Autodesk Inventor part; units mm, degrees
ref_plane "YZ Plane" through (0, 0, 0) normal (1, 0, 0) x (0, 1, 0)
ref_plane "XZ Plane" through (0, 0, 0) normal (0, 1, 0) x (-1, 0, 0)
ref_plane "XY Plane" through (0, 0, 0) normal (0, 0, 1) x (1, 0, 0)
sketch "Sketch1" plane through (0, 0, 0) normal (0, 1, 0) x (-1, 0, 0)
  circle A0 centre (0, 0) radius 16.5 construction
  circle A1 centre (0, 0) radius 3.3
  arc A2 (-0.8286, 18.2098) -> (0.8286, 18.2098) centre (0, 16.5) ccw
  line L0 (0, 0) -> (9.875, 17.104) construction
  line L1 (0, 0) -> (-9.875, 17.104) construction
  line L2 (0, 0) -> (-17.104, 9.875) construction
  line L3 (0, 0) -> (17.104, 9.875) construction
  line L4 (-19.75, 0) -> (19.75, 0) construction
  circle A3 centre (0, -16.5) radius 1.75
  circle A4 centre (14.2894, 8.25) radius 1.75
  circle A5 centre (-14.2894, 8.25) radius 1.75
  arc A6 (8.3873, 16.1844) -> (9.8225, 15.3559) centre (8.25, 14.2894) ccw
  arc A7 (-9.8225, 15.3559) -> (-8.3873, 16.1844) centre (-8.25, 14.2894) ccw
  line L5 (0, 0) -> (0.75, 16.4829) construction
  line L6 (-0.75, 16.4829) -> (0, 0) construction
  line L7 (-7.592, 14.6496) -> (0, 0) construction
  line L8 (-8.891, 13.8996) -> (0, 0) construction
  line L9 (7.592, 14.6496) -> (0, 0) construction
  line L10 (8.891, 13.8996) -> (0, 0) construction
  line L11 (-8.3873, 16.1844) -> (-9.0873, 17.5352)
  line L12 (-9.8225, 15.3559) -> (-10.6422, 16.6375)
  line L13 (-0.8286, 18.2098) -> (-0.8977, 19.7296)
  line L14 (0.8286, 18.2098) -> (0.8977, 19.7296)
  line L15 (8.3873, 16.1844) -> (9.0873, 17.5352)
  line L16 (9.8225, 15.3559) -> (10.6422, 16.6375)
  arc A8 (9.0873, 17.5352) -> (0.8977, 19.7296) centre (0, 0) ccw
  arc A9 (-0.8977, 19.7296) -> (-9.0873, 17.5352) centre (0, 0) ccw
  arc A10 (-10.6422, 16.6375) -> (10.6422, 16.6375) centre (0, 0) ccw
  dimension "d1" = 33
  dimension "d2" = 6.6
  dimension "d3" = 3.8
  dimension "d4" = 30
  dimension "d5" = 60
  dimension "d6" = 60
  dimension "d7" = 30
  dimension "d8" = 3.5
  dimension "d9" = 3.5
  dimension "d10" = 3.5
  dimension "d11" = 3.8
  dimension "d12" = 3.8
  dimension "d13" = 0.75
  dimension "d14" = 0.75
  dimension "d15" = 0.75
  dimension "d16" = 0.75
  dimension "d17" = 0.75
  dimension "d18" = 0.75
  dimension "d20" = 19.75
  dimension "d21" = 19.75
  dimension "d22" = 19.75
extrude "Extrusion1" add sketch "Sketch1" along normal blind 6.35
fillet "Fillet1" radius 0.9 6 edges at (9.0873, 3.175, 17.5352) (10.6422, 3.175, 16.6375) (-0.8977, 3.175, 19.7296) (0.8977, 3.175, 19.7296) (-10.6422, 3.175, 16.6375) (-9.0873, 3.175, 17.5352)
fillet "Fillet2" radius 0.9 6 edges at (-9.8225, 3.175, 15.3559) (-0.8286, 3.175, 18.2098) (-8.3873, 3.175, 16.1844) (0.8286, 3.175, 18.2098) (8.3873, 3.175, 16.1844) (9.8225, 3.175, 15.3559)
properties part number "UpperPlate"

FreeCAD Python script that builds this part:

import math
import FreeCAD as App
import Part
import Sketcher


def edges_at(feature, points):
    """Names of the edges that pass closest to the given points."""
    edges = feature.Shape.Edges
    near = lambda p: min(range(len(edges)), key=lambda i: edges[i].distToShape(Part.Vertex(*p))[0])
    return sorted({f"Edge{near(p) + 1}" for p in points})

doc = App.newDocument("Part")
body = doc.addObject("PartDesign::Body", "Body")

sketch1 = body.newObject("Sketcher::SketchObject", "Sketch")
sketch1.AttachmentSupport = (doc.getObject("XZ_Plane"), [""])
sketch1.MapMode = "FlatFace"
sketch1.addGeometry([
    Part.ArcOfCircle(Part.Circle(App.Vector(0, 16.5, 0), App.Vector(0, 0, 1), 1.9), math.radians(116), math.radians(424)),
    Part.LineSegment(App.Vector(0.8, 18.2, 0), App.Vector(0.9, 19.7, 0)),
    Part.ArcOfCircle(Part.Circle(App.Vector(0, 0, 0), App.Vector(0, 0, 1), 19.7), math.radians(63), math.radians(87)),
    Part.LineSegment(App.Vector(9.1, 17.5, 0), App.Vector(8.4, 16.2, 0)),
    Part.ArcOfCircle(Part.Circle(App.Vector(8.2, 14.3, 0), App.Vector(0, 0, 1), 1.9), math.radians(86), math.radians(394)),
    Part.LineSegment(App.Vector(9.8, 15.4, 0), App.Vector(10.6, 16.6, 0)),
    Part.ArcOfCircle(Part.Circle(App.Vector(0, 0, 0), App.Vector(0, 0, 1), 19.8), math.radians(123), math.radians(417)),
    Part.LineSegment(App.Vector(-10.6, 16.6, 0), App.Vector(-9.8, 15.4, 0)),
    Part.ArcOfCircle(Part.Circle(App.Vector(-8.2, 14.3, 0), App.Vector(0, 0, 1), 1.9), math.radians(146), math.radians(454)),
    Part.LineSegment(App.Vector(-8.4, 16.2, 0), App.Vector(-9.1, 17.5, 0)),
    Part.ArcOfCircle(Part.Circle(App.Vector(0, 0, 0), App.Vector(0, 0, 1), 19.8), math.radians(93), math.radians(117)),
    Part.LineSegment(App.Vector(-0.9, 19.7, 0), App.Vector(-0.8, 18.2, 0)),
    Part.Circle(App.Vector(0, -16.5, 0), App.Vector(0, 0, 1), 1.8),
    Part.Circle(App.Vector(14.3, 8.2, 0), App.Vector(0, 0, 1), 1.8),
    Part.Circle(App.Vector(0, 0, 0), App.Vector(0, 0, 1), 3.3),
    Part.Circle(App.Vector(-14.3, 8.2, 0), App.Vector(0, 0, 1), 1.8),
], False)
sketch1.addConstraint([
    Sketcher.Constraint("Coincident", 0, 2, 1, 1),
    Sketcher.Constraint("Coincident", 1, 2, 2, 2),
    Sketcher.Constraint("Coincident", 2, 1, 3, 1),
    Sketcher.Constraint("Coincident", 3, 2, 4, 1),
    Sketcher.Constraint("Coincident", 4, 2, 5, 1),
    Sketcher.Constraint("Coincident", 5, 2, 6, 2),
    Sketcher.Constraint("Coincident", 6, 1, 7, 1),
    Sketcher.Constraint("Coincident", 7, 2, 8, 1),
    Sketcher.Constraint("Coincident", 8, 2, 9, 1),
    Sketcher.Constraint("Coincident", 9, 2, 10, 2),
    Sketcher.Constraint("Coincident", 10, 1, 11, 1),
    Sketcher.Constraint("Coincident", 11, 2, 0, 1),
    Sketcher.Constraint("Coincident", 2, 3, -1, 1),
    Sketcher.Constraint("Coincident", 6, 3, -1, 1),
    Sketcher.Constraint("Coincident", 10, 3, -1, 1),
    Sketcher.Constraint("Coincident", 14, 3, -1, 1),
    Sketcher.Constraint("Equal", 0, 4),
    Sketcher.Constraint("Equal", 2, 6),
    Sketcher.Constraint("Equal", 4, 8),
    Sketcher.Constraint("Equal", 6, 10),
    Sketcher.Constraint("Equal", 12, 13),
    Sketcher.Constraint("Equal", 13, 15),
    Sketcher.Constraint("Symmetric", 0, 3, 12, 3, -1, 1),
    Sketcher.Constraint("Symmetric", 4, 3, 8, 3, -2),
    Sketcher.Constraint("Symmetric", 13, 3, 15, 3, -2),
    Sketcher.Constraint("Symmetric", 0, 2, 11, 2, -2),
    Sketcher.Constraint("Horizontal", 5, 2, 6, 1),
    Sketcher.Constraint("Horizontal", 4, 2, 7, 2),
    Sketcher.Constraint("Horizontal", 3, 2, 8, 2),
    Sketcher.Constraint("Horizontal", 2, 1, 9, 2),
    Sketcher.Constraint("Horizontal", 1, 2, 10, 1),
    Sketcher.Constraint("Equal", 1, 3),
    Sketcher.Constraint("Equal", 3, 5),
    Sketcher.Constraint("Diameter", 12, 3.5),
    Sketcher.Constraint("Diameter", 14, 6.6),
    Sketcher.Constraint("Radius", 0, 1.9),
    Sketcher.Constraint("Radius", 2, 19.75),
    Sketcher.Constraint("DistanceY", -1, 1, 0, 3, 16.5),
    Sketcher.Constraint("DistanceX", 8, 3, 4, 3, 16.5),
    Sketcher.Constraint("DistanceX", 3, 2, 2, 1, 0.7),
    Sketcher.Constraint("DistanceY", -1, 1, 13, 3, 8.25),
    Sketcher.Constraint("DistanceX", 6, 1, 1, 2, 11.54),
    Sketcher.Constraint("DistanceY", -1, 1, 4, 2, 15.356),
    Sketcher.Constraint("DistanceX", 15, 3, 0, 2, 15.118),
    Sketcher.Constraint("DistanceX", 0, 2, 1, 2, 0.069),
    Sketcher.Constraint("DistanceX", 2, 1, 13, 3, 5.202),
])
pad1 = body.newObject("PartDesign::Pad", "Pad")
pad1.Profile = sketch1
pad1.Length = 6.35
pad1.Reversed = True
doc.recompute()

fillet = body.newObject("PartDesign::Fillet", "Fillet")
fillet.Base = (pad1, edges_at(pad1, [
    (9.087, 3.175, 17.535),
    (10.642, 3.175, 16.637),
    (-0.898, 3.175, 19.73),
    (0.898, 3.175, 19.73),
    (-10.642, 3.175, 16.637),
    (-9.087, 3.175, 17.535),
]))
fillet.Radius = 0.9
doc.recompute()

fillet2 = body.newObject("PartDesign::Fillet", "Fillet001")
fillet2.Base = (fillet, edges_at(fillet, [
    (-9.822, 3.175, 15.356),
    (-0.829, 3.175, 18.21),
    (-8.387, 3.175, 16.184),
    (0.829, 3.175, 18.21),
    (8.387, 3.175, 16.184),
    (9.822, 3.175, 15.356),
]))
fillet2.Radius = 0.9

doc.recompute()
